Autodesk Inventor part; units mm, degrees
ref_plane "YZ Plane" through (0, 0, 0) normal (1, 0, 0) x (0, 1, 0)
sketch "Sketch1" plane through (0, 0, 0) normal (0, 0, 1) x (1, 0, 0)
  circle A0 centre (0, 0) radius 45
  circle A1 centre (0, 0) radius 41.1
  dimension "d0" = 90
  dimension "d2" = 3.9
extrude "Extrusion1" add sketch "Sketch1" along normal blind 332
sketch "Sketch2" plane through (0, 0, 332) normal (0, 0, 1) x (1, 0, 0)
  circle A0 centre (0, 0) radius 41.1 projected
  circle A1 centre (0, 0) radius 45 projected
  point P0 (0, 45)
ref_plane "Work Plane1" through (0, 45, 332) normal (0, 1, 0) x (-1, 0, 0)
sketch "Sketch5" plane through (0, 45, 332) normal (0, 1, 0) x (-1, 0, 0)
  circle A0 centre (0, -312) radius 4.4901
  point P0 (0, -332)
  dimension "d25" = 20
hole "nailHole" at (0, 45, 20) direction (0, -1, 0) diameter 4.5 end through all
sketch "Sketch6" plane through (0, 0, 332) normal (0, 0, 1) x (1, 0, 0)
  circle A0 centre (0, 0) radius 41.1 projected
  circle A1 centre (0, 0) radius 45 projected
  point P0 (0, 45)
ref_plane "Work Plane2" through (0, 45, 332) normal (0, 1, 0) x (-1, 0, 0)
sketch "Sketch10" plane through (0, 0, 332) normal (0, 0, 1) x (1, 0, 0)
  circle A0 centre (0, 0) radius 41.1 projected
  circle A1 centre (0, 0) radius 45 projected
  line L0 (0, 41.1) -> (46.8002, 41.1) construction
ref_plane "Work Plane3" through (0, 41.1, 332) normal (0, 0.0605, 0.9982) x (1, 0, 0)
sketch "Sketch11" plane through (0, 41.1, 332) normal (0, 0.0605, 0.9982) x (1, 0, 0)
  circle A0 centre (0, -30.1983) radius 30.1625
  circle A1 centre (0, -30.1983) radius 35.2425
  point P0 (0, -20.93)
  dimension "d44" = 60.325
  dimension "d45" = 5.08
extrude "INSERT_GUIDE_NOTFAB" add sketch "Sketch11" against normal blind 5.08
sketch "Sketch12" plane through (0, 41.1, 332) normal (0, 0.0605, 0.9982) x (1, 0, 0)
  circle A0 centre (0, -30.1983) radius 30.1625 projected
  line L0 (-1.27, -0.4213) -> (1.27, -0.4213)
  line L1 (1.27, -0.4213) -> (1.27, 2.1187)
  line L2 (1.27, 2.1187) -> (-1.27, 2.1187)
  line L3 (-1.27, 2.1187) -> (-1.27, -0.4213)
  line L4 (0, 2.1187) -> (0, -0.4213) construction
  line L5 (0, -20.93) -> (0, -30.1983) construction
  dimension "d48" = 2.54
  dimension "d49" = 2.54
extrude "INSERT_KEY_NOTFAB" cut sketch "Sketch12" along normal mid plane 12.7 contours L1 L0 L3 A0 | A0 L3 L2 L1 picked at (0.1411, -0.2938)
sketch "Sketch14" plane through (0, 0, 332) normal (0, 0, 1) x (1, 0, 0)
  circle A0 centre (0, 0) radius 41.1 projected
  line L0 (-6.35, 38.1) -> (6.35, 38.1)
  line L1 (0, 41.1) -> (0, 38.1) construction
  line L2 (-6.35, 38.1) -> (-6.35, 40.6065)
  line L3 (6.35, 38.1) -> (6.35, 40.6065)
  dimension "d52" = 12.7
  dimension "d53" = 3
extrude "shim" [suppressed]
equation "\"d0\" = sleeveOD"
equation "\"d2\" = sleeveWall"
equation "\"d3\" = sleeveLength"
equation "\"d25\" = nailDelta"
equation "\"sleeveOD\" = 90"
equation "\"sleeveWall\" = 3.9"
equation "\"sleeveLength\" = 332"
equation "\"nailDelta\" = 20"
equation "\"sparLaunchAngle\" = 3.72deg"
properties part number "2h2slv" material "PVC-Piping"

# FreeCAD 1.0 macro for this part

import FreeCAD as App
import Part
import Sketcher

V = App.Vector
Q = App.Units.Quantity


def add_polygon(sketch, points):
    """Adds a closed chain of lines whose ends are joined by coincident constraints."""
    first, n = sketch.GeometryCount, len(points)
    for a, b in zip(points, points[1:] + points[:1]):
        sketch.addGeometry(Part.LineSegment(App.Vector(*a, 0), App.Vector(*b, 0)), False)
    for i in range(n):
        sketch.addConstraint(Sketcher.Constraint("Coincident", first + i, 2, first + (i + 1) % n, 1))

doc = App.newDocument("Part")
body = doc.addObject("PartDesign::Body", "Body")

# Sketch on XY plane
sketch1 = body.newObject("Sketcher::SketchObject", "Sketch")
sketch1.AttachmentSupport = (doc.getObject("XY_Plane"), [""])
sketch1.MapMode = "FlatFace"
sketch1.addGeometry(Part.Circle(V(0, 0, 0), V(0, 0, 1), 45), False)
sketch1.addGeometry(Part.Circle(V(0, 0, 0), V(0, 0, 1), 41), False)
sketch1.addConstraint(Sketcher.Constraint("Coincident", 0, 3, -1, 1))
sketch1.addConstraint(Sketcher.Constraint("Coincident", 1, 3, -1, 1))
sketch1.addConstraint(Sketcher.Constraint("Diameter", 0, Q("3.5433 in")))
sketch1.addConstraint(Sketcher.Constraint("Diameter", 1, Q("82.2 mm")))
pad1 = body.newObject("PartDesign::Pad", "Pad")
pad1.Profile = sketch1
pad1.Length = 332

# Sketch on XZ plane
sketch2 = body.newObject("Sketcher::SketchObject", "Sketch001")
sketch2.AttachmentSupport = (doc.getObject("XZ_Plane"), [""])
sketch2.MapMode = "FlatFace"
sketch2.AttachmentOffset = App.Placement(V(0, 0, -45), App.Rotation())
sketch2.addGeometry(Part.Circle(V(0, 20, 0), V(0, 0, 1), 2.2), False)
sketch2.addConstraint(Sketcher.Constraint("PointOnObject", 0, 3, -2))
sketch2.addConstraint(Sketcher.Constraint("Diameter", 0, Q("4.5 mm")))
sketch2.addConstraint(Sketcher.Constraint("DistanceY", -1, 1, 0, 3, Q("0.7874 in")))
doc.recompute()
hole = body.newObject("PartDesign::Hole", "Hole")
hole.Profile = sketch2
hole.ThreadType = "None"
hole.Diameter = 4.5
hole.DepthType = "ThroughAll"
hole.Reversed = True

# Sketch on an angled plane
sketch3 = body.newObject("Sketcher::SketchObject", "Sketch002")
sketch3.Placement = App.Placement(V(0, 41.1, 332), App.Rotation(V(1, 0, 0), V(0, 0.998168314, -0.06049808), V(0, 0.06049808, 0.998168314), "ZXY"))
sketch3.addGeometry(Part.Circle(V(0, -30, 0), V(0, 0, 1), 35), False)
sketch3.addGeometry(Part.Circle(V(0, -30, 0), V(0, 0, 1), 30), False)
sketch3.addConstraint(Sketcher.Constraint("Coincident", 1, 3, 0, 3))
sketch3.addConstraint(Sketcher.Constraint("PointOnObject", 0, 3, -2))
sketch3.addConstraint(Sketcher.Constraint("Diameter", 1, Q("2.375 in")))
sketch3.addConstraint(Sketcher.Constraint("Diameter", 0, Q("2.775 in")))
sketch3.addConstraint(Sketcher.Constraint("DistanceY", 0, 3, -1, 1, Q("1.1889 in")))
pad2 = body.newObject("PartDesign::Pad", "Pad001")
pad2.Profile = sketch3
pad2.Length = Q("0.2 in")
pad2.Reversed = True

# Sketch on an angled plane
sketch4 = body.newObject("Sketcher::SketchObject", "Sketch003")
sketch4.Placement = App.Placement(V(0, 41.1, 332), App.Rotation(V(1, 0, 0), V(0, 0.998168314, -0.06049808), V(0, 0.06049808, 0.998168314), "ZXY"))
add_polygon(sketch4, [(1.3, -0.4), (1.3, 2.1), (-1.3, 2.1), (-1.3, -0.4)])  # lines 0-3
sketch4.addConstraint(Sketcher.Constraint("Vertical", 0))
sketch4.addConstraint(Sketcher.Constraint("Horizontal", 1))
sketch4.addConstraint(Sketcher.Constraint("Vertical", 2))
sketch4.addConstraint(Sketcher.Constraint("Horizontal", 3))
sketch4.addConstraint(Sketcher.Constraint("Equal", 3, 0))
sketch4.addConstraint(Sketcher.Constraint("DistanceX", 1, 2, 1, 1, Q("0.1 in")))
sketch4.addConstraint(Sketcher.Constraint("DistanceX", -1, 1, 0, 2, Q("0.05 in")))
sketch4.addConstraint(Sketcher.Constraint("DistanceY", -1, 1, 0, 2, Q("2.1187 mm")))
pocket1 = body.newObject("PartDesign::Pocket", "Pocket")
pocket1.Profile = sketch4
pocket1.Length = Q("0.5 in")
pocket1.Midplane = True

doc.recompute()
